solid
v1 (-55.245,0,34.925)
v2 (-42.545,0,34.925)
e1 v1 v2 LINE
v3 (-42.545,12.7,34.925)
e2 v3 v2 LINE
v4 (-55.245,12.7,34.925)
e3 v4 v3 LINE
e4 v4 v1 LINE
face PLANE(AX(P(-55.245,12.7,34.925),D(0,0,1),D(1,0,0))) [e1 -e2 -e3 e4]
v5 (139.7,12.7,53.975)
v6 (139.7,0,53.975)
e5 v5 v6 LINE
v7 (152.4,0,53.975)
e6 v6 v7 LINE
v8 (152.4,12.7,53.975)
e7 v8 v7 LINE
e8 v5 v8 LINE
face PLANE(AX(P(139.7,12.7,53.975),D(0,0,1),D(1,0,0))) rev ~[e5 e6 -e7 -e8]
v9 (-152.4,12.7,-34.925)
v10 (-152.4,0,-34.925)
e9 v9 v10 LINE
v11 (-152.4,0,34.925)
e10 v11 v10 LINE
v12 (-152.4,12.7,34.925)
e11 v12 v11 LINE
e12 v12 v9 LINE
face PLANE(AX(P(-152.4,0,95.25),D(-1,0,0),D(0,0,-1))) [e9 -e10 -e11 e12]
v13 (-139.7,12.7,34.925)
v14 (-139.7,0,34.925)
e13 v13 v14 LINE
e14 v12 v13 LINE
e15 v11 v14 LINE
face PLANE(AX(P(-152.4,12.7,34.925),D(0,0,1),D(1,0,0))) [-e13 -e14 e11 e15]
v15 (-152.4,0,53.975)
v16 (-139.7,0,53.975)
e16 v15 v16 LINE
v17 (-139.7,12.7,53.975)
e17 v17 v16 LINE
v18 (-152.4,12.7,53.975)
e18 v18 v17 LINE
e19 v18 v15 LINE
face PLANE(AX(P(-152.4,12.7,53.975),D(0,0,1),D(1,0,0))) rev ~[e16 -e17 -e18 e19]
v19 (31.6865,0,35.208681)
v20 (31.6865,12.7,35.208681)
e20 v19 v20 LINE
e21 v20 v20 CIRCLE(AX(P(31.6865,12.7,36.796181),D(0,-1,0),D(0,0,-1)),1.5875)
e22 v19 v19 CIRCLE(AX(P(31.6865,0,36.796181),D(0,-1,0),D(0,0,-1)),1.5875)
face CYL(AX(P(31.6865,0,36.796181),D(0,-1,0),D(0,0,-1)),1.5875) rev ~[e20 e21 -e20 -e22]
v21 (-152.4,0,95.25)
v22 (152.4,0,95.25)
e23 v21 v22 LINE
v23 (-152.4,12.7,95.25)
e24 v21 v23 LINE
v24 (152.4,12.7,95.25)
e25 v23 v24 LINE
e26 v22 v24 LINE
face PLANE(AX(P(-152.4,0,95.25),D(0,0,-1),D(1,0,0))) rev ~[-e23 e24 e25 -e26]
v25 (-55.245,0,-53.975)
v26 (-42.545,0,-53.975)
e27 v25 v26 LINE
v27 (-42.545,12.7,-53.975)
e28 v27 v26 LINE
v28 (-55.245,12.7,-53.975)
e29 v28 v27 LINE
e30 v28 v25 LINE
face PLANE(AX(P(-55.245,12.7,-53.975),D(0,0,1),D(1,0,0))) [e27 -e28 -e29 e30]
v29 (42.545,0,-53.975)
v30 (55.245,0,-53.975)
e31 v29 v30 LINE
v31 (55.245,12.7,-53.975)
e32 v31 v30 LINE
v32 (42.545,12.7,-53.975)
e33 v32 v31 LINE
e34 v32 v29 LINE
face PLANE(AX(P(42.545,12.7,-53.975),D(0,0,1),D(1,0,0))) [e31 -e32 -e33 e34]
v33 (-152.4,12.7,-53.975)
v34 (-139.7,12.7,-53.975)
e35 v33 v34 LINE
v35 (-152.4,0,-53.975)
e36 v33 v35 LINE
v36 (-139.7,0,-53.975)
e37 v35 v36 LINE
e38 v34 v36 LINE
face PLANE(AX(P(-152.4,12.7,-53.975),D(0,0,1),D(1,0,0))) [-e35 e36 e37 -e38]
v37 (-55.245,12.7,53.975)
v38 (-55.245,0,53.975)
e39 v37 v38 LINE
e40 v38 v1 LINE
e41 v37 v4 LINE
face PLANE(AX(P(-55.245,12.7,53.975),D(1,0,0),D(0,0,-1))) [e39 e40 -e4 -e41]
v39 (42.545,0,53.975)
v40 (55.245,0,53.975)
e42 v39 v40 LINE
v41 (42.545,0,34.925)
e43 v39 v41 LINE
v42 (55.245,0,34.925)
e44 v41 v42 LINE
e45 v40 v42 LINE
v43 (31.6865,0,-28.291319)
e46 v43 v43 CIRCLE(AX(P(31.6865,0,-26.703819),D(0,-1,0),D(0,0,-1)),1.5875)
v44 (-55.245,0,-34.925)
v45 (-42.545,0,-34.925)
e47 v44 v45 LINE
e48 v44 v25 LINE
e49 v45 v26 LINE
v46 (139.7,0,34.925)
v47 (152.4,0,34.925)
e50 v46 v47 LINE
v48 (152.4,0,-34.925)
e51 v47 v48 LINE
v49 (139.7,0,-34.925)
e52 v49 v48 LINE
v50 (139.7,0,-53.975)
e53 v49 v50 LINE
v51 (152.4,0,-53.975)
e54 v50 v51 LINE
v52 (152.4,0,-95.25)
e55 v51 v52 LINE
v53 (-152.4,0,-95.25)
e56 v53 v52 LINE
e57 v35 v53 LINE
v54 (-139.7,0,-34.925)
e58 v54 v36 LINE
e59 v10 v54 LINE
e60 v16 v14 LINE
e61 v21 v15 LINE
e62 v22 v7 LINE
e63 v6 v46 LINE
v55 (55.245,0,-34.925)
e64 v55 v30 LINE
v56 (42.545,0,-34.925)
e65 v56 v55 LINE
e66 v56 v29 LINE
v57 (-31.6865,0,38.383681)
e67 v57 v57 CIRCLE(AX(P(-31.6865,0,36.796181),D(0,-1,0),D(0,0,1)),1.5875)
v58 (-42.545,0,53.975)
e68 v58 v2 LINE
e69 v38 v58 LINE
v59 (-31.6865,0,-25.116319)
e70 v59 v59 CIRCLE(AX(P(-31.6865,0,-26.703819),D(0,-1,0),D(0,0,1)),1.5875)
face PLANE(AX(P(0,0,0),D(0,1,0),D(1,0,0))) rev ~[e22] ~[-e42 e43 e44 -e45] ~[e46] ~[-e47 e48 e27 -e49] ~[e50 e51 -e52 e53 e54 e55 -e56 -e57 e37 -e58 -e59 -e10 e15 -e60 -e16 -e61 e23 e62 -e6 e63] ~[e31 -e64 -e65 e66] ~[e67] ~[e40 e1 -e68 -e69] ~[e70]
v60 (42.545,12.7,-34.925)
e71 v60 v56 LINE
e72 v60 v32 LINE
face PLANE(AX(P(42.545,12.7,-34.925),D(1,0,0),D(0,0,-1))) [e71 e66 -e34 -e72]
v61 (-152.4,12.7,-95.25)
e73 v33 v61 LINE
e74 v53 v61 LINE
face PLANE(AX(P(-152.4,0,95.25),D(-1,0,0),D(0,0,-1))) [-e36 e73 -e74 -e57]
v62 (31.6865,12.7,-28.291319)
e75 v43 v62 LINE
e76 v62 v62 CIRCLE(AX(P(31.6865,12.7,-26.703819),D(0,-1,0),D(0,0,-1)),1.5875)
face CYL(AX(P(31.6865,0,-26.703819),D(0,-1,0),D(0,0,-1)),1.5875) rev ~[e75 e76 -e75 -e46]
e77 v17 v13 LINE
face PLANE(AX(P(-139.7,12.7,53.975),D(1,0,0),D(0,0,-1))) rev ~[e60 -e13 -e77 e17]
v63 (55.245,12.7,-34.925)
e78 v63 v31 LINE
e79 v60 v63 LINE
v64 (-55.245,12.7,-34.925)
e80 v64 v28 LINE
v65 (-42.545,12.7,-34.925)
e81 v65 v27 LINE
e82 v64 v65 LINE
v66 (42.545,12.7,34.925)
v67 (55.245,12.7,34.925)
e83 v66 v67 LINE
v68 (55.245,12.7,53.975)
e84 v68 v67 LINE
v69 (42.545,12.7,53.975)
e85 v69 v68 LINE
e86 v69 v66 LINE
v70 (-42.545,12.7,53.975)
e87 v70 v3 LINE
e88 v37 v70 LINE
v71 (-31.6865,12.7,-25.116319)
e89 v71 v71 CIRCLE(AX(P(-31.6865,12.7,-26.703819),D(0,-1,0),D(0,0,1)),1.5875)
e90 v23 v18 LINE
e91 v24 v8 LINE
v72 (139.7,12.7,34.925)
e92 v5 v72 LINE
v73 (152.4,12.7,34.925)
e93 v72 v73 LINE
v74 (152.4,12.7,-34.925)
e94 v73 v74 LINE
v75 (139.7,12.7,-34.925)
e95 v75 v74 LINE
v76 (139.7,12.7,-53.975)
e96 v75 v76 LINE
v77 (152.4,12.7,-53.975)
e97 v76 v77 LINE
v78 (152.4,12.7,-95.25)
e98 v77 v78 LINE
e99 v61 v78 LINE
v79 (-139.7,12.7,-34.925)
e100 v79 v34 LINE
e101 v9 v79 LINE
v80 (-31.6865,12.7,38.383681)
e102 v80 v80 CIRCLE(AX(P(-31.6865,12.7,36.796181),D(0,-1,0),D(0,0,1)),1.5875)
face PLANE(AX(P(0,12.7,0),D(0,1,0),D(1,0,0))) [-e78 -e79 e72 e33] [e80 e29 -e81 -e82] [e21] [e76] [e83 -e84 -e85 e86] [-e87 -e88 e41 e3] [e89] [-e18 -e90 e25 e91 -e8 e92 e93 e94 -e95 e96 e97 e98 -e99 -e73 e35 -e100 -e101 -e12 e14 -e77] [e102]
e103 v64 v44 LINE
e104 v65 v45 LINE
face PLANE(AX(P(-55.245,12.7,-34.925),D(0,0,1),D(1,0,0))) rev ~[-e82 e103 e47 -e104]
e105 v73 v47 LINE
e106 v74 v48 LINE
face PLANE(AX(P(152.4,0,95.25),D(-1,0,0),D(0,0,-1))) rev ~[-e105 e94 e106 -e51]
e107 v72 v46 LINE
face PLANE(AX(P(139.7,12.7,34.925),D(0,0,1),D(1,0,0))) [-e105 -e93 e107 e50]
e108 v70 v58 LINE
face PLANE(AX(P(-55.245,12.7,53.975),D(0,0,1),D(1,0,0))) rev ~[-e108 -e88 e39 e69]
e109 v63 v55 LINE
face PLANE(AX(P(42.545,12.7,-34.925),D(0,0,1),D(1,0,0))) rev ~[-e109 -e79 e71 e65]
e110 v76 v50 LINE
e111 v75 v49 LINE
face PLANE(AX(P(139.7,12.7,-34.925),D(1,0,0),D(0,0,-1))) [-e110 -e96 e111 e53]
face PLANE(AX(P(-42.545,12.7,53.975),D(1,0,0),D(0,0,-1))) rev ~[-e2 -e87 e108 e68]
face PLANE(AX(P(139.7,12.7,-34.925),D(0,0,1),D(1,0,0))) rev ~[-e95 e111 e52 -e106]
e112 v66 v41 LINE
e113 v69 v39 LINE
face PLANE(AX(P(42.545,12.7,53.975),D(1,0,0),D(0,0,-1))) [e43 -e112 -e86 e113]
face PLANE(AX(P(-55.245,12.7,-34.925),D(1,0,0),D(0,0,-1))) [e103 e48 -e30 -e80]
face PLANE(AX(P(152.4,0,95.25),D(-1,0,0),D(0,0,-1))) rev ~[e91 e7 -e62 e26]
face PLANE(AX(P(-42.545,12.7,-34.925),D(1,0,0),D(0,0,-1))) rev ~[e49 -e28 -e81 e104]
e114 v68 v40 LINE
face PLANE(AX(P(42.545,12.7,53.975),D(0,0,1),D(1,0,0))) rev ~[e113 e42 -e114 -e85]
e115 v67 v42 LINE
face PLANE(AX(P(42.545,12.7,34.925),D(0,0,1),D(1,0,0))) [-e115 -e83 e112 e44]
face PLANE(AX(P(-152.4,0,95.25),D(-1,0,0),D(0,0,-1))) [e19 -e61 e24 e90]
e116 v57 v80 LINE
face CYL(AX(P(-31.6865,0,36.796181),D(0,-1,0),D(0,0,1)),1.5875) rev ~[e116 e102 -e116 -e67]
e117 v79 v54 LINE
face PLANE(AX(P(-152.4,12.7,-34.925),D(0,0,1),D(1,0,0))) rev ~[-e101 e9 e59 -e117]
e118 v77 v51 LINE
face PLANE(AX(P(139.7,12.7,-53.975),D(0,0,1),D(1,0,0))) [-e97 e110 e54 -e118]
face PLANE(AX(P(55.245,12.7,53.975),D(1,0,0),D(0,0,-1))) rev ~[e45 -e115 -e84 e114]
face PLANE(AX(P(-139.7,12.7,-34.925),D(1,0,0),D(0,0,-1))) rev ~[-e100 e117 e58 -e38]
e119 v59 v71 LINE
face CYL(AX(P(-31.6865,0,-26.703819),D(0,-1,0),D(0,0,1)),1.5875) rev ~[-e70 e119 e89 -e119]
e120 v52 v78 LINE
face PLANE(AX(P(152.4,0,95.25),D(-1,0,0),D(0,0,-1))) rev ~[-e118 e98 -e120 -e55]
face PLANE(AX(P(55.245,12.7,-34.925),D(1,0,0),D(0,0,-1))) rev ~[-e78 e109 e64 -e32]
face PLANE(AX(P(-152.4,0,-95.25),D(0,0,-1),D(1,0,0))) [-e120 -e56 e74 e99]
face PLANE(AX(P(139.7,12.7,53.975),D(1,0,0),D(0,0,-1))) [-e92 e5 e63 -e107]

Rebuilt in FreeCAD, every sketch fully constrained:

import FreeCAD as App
import Part
import Sketcher

V = App.Vector
Q = App.Units.Quantity


def add_polygon(sketch, points):
    """Adds a closed chain of lines whose ends are joined by coincident constraints."""
    first, n = sketch.GeometryCount, len(points)
    for a, b in zip(points, points[1:] + points[:1]):
        sketch.addGeometry(Part.LineSegment(App.Vector(*a, 0), App.Vector(*b, 0)), False)
    for i in range(n):
        sketch.addConstraint(Sketcher.Constraint("Coincident", first + i, 2, first + (i + 1) % n, 1))

doc = App.newDocument("Part")
params = doc.addObject("Spreadsheet::Sheet", "Params")
for row, (alias, value) in enumerate([
    ("sketch1_width", "12 in"),
    ("sketch1_height", "7.5 in"),
    ("pad1_length", "0.5 in"),
    ("sketch2_width", "0.5 in"),
    ("sketch2_height", "0.75 in"),
    ("sketch3_diameter", "0.125 in"),
], start=1):
    params.set(f"A{row}", alias)
    params.set(f"B{row}", "=" + value)
    params.setAlias(f"B{row}", alias)

body = doc.addObject("PartDesign::Body", "Body")

# Sketch on XZ plane
sketch1 = doc.addObject("Sketcher::SketchObject", "Sketch")
body.addObject(sketch1)
sketch1.AttachmentSupport = (doc.XZ_Plane, [""])
sketch1.MapMode = "FlatFace"
add_polygon(sketch1, [(-152, -95), (-152, 95), (152, 95), (152, -95)])  # lines 0-3
sketch1.addConstraint(Sketcher.Constraint("Vertical", 0))
sketch1.addConstraint(Sketcher.Constraint("Horizontal", 1))
sketch1.addConstraint(Sketcher.Constraint("Vertical", 2))
sketch1.addConstraint(Sketcher.Constraint("Horizontal", 3))
sketch1.addConstraint(Sketcher.Constraint("Symmetric", 0, 2, 2, 2, -1, 1))
sketch1.addConstraint(Sketcher.Constraint("DistanceX", 1, 1, 1, 2, Q("12 in")))
sketch1.addConstraint(Sketcher.Constraint("DistanceY", 0, 1, 0, 2, Q("7.5 in")))
sketch1.setExpression("Constraints[9]", "Params.sketch1_width")
sketch1.setExpression("Constraints[10]", "Params.sketch1_height")
pad1 = doc.addObject("PartDesign::Pad", "Pad")
body.addObject(pad1)
pad1.Profile = sketch1
pad1.setExpression("Length", "Params.pad1_length")
pad1.Reversed = True

# Sketch on XZ plane
sketch2 = doc.addObject("Sketcher::SketchObject", "Sketch001")
body.addObject(sketch2)
sketch2.AttachmentSupport = (doc.XZ_Plane, [""])
sketch2.MapMode = "FlatFace"
sketch2.AttachmentOffset = App.Placement(V(0, 0, -0.5 * 25.4), App.Rotation())
add_polygon(sketch2, [(-55, -54), (-55, -35), (-43, -35), (-43, -54)])  # lines 0-3
add_polygon(sketch2, [(43, -54), (43, -35), (55, -35), (55, -54)])  # lines 4-7
add_polygon(sketch2, [(-55, 35), (-55, 54), (-43, 54), (-43, 35)])  # lines 8-11
add_polygon(sketch2, [(43, 35), (43, 54), (55, 54), (55, 35)])  # lines 12-15
add_polygon(sketch2, [(140, -54), (140, -35), (152, -35), (152, -54)])  # lines 16-19
add_polygon(sketch2, [(-152, -54), (-152, -35), (-140, -35), (-140, -54)])  # lines 20-23
add_polygon(sketch2, [(140, 35), (140, 54), (152, 54), (152, 35)])  # lines 24-27
add_polygon(sketch2, [(-152, 35), (-152, 54), (-140, 54), (-140, 35)])  # lines 28-31
sketch2.addConstraint(Sketcher.Constraint("Vertical", 0))
sketch2.addConstraint(Sketcher.Constraint("Horizontal", 1))
sketch2.addConstraint(Sketcher.Constraint("Vertical", 2))
sketch2.addConstraint(Sketcher.Constraint("Horizontal", 3))
sketch2.addConstraint(Sketcher.Constraint("Vertical", 4))
sketch2.addConstraint(Sketcher.Constraint("Horizontal", 5))
sketch2.addConstraint(Sketcher.Constraint("Vertical", 6))
sketch2.addConstraint(Sketcher.Constraint("Horizontal", 7))
sketch2.addConstraint(Sketcher.Constraint("Vertical", 8))
sketch2.addConstraint(Sketcher.Constraint("Horizontal", 9))
sketch2.addConstraint(Sketcher.Constraint("Vertical", 10))
sketch2.addConstraint(Sketcher.Constraint("Horizontal", 11))
sketch2.addConstraint(Sketcher.Constraint("Vertical", 12))
sketch2.addConstraint(Sketcher.Constraint("Horizontal", 13))
sketch2.addConstraint(Sketcher.Constraint("Vertical", 14))
sketch2.addConstraint(Sketcher.Constraint("Horizontal", 15))
sketch2.addConstraint(Sketcher.Constraint("Vertical", 16))
sketch2.addConstraint(Sketcher.Constraint("Horizontal", 17))
sketch2.addConstraint(Sketcher.Constraint("Vertical", 18))
sketch2.addConstraint(Sketcher.Constraint("Horizontal", 19))
sketch2.addConstraint(Sketcher.Constraint("Vertical", 20))
sketch2.addConstraint(Sketcher.Constraint("Horizontal", 21))
sketch2.addConstraint(Sketcher.Constraint("Vertical", 22))
sketch2.addConstraint(Sketcher.Constraint("Horizontal", 23))
sketch2.addConstraint(Sketcher.Constraint("Vertical", 24))
sketch2.addConstraint(Sketcher.Constraint("Horizontal", 25))
sketch2.addConstraint(Sketcher.Constraint("Vertical", 26))
sketch2.addConstraint(Sketcher.Constraint("Horizontal", 27))
sketch2.addConstraint(Sketcher.Constraint("Vertical", 28))
sketch2.addConstraint(Sketcher.Constraint("Horizontal", 29))
sketch2.addConstraint(Sketcher.Constraint("Vertical", 30))
sketch2.addConstraint(Sketcher.Constraint("Horizontal", 31))
sketch2.addConstraint(Sketcher.Constraint("Symmetric", 6, 2, 8, 2, -1, 1))
sketch2.addConstraint(Sketcher.Constraint("Symmetric", 4, 2, 10, 2, -1, 1))
sketch2.addConstraint(Sketcher.Constraint("Symmetric", 2, 2, 12, 2, -1, 1))
sketch2.addConstraint(Sketcher.Constraint("Symmetric", 0, 2, 14, 2, -1, 1))
sketch2.addConstraint(Sketcher.Constraint("Symmetric", 22, 2, 24, 2, -1, 1))
sketch2.addConstraint(Sketcher.Constraint("Symmetric", 20, 2, 26, 2, -1, 1))
sketch2.addConstraint(Sketcher.Constraint("Symmetric", 18, 2, 28, 2, -1, 1))
sketch2.addConstraint(Sketcher.Constraint("Symmetric", 16, 2, 30, 2, -1, 1))
sketch2.addConstraint(Sketcher.Constraint("Symmetric", 1, 2, 4, 2, -2))
sketch2.addConstraint(Sketcher.Constraint("Symmetric", 3, 2, 6, 2, -2))
sketch2.addConstraint(Sketcher.Constraint("Symmetric", 17, 2, 20, 2, -2))
sketch2.addConstraint(Sketcher.Constraint("Symmetric", 19, 2, 22, 2, -2))
sketch2.addConstraint(Sketcher.Constraint("Horizontal", 5, 2, 16, 2))
sketch2.addConstraint(Sketcher.Constraint("Horizontal", 7, 2, 18, 2))
sketch2.addConstraint(Sketcher.Constraint("Equal", 15, 17))
sketch2.addConstraint(Sketcher.Constraint("DistanceX", 1, 1, 1, 2, Q("0.5 in")))
sketch2.addConstraint(Sketcher.Constraint("DistanceX", -1, 1, 17, 2, Q("6 in")))
sketch2.addConstraint(Sketcher.Constraint("DistanceY", 0, 1, 0, 2, Q("0.75 in")))
sketch2.addConstraint(Sketcher.Constraint("DistanceY", 0, 2, 8, 2, Q("3.5 in")))
sketch2.addConstraint(Sketcher.Constraint("DistanceX", 1, 2, 4, 2, Q("3.35 in")))
sketch2.setExpression("Constraints[79]", "Params.sketch2_width")
sketch2.setExpression("Constraints[81]", "Params.sketch2_height")
pocket1 = doc.addObject("PartDesign::Pocket", "Pocket")
body.addObject(pocket1)
pocket1.Profile = sketch2
pocket1.Type = "ThroughAll"
pocket1.Reversed = True

# Sketch on XZ plane
sketch3 = doc.addObject("Sketcher::SketchObject", "Sketch002")
body.addObject(sketch3)
sketch3.AttachmentSupport = (doc.XZ_Plane, [""])
sketch3.MapMode = "FlatFace"
sketch3.addGeometry(Part.Circle(V(31.7, 36.8, 0), V(0, 0, 1), 1.6), False)
sketch3.addGeometry(Part.Circle(V(31.7, -26.7, 0), V(0, 0, 1), 1.6), False)
sketch3.addGeometry(Part.Circle(V(-31.7, -26.7, 0), V(0, 0, 1), 1.6), False)
sketch3.addGeometry(Part.Circle(V(-31.7, 36.8, 0), V(0, 0, 1), 1.6), False)
sketch3.addConstraint(Sketcher.Constraint("Equal", 0, 1))
sketch3.addConstraint(Sketcher.Constraint("Equal", 1, 2))
sketch3.addConstraint(Sketcher.Constraint("Equal", 2, 3))
sketch3.addConstraint(Sketcher.Constraint("Symmetric", 1, 3, 2, 3, -2))
sketch3.addConstraint(Sketcher.Constraint("Symmetric", 0, 3, 3, 3, -2))
sketch3.addConstraint(Sketcher.Constraint("Vertical", 0, 3, 1, 3))
sketch3.addConstraint(Sketcher.Constraint("Diameter", 0, Q("0.125 in")))
sketch3.addConstraint(Sketcher.Constraint("DistanceY", 1, 3, 0, 3, Q("2.5 in")))
sketch3.addConstraint(Sketcher.Constraint("DistanceX", 2, 3, 1, 3, Q("2.495 in")))
sketch3.addConstraint(Sketcher.Constraint("DistanceY", -1, 1, 0, 3, 36.796181))
sketch3.setExpression("Constraints[6]", "Params.sketch3_diameter")
pocket2 = doc.addObject("PartDesign::Pocket", "Pocket001")
body.addObject(pocket2)
pocket2.Profile = sketch3
pocket2.Type = "ThroughAll"

doc.recompute()
